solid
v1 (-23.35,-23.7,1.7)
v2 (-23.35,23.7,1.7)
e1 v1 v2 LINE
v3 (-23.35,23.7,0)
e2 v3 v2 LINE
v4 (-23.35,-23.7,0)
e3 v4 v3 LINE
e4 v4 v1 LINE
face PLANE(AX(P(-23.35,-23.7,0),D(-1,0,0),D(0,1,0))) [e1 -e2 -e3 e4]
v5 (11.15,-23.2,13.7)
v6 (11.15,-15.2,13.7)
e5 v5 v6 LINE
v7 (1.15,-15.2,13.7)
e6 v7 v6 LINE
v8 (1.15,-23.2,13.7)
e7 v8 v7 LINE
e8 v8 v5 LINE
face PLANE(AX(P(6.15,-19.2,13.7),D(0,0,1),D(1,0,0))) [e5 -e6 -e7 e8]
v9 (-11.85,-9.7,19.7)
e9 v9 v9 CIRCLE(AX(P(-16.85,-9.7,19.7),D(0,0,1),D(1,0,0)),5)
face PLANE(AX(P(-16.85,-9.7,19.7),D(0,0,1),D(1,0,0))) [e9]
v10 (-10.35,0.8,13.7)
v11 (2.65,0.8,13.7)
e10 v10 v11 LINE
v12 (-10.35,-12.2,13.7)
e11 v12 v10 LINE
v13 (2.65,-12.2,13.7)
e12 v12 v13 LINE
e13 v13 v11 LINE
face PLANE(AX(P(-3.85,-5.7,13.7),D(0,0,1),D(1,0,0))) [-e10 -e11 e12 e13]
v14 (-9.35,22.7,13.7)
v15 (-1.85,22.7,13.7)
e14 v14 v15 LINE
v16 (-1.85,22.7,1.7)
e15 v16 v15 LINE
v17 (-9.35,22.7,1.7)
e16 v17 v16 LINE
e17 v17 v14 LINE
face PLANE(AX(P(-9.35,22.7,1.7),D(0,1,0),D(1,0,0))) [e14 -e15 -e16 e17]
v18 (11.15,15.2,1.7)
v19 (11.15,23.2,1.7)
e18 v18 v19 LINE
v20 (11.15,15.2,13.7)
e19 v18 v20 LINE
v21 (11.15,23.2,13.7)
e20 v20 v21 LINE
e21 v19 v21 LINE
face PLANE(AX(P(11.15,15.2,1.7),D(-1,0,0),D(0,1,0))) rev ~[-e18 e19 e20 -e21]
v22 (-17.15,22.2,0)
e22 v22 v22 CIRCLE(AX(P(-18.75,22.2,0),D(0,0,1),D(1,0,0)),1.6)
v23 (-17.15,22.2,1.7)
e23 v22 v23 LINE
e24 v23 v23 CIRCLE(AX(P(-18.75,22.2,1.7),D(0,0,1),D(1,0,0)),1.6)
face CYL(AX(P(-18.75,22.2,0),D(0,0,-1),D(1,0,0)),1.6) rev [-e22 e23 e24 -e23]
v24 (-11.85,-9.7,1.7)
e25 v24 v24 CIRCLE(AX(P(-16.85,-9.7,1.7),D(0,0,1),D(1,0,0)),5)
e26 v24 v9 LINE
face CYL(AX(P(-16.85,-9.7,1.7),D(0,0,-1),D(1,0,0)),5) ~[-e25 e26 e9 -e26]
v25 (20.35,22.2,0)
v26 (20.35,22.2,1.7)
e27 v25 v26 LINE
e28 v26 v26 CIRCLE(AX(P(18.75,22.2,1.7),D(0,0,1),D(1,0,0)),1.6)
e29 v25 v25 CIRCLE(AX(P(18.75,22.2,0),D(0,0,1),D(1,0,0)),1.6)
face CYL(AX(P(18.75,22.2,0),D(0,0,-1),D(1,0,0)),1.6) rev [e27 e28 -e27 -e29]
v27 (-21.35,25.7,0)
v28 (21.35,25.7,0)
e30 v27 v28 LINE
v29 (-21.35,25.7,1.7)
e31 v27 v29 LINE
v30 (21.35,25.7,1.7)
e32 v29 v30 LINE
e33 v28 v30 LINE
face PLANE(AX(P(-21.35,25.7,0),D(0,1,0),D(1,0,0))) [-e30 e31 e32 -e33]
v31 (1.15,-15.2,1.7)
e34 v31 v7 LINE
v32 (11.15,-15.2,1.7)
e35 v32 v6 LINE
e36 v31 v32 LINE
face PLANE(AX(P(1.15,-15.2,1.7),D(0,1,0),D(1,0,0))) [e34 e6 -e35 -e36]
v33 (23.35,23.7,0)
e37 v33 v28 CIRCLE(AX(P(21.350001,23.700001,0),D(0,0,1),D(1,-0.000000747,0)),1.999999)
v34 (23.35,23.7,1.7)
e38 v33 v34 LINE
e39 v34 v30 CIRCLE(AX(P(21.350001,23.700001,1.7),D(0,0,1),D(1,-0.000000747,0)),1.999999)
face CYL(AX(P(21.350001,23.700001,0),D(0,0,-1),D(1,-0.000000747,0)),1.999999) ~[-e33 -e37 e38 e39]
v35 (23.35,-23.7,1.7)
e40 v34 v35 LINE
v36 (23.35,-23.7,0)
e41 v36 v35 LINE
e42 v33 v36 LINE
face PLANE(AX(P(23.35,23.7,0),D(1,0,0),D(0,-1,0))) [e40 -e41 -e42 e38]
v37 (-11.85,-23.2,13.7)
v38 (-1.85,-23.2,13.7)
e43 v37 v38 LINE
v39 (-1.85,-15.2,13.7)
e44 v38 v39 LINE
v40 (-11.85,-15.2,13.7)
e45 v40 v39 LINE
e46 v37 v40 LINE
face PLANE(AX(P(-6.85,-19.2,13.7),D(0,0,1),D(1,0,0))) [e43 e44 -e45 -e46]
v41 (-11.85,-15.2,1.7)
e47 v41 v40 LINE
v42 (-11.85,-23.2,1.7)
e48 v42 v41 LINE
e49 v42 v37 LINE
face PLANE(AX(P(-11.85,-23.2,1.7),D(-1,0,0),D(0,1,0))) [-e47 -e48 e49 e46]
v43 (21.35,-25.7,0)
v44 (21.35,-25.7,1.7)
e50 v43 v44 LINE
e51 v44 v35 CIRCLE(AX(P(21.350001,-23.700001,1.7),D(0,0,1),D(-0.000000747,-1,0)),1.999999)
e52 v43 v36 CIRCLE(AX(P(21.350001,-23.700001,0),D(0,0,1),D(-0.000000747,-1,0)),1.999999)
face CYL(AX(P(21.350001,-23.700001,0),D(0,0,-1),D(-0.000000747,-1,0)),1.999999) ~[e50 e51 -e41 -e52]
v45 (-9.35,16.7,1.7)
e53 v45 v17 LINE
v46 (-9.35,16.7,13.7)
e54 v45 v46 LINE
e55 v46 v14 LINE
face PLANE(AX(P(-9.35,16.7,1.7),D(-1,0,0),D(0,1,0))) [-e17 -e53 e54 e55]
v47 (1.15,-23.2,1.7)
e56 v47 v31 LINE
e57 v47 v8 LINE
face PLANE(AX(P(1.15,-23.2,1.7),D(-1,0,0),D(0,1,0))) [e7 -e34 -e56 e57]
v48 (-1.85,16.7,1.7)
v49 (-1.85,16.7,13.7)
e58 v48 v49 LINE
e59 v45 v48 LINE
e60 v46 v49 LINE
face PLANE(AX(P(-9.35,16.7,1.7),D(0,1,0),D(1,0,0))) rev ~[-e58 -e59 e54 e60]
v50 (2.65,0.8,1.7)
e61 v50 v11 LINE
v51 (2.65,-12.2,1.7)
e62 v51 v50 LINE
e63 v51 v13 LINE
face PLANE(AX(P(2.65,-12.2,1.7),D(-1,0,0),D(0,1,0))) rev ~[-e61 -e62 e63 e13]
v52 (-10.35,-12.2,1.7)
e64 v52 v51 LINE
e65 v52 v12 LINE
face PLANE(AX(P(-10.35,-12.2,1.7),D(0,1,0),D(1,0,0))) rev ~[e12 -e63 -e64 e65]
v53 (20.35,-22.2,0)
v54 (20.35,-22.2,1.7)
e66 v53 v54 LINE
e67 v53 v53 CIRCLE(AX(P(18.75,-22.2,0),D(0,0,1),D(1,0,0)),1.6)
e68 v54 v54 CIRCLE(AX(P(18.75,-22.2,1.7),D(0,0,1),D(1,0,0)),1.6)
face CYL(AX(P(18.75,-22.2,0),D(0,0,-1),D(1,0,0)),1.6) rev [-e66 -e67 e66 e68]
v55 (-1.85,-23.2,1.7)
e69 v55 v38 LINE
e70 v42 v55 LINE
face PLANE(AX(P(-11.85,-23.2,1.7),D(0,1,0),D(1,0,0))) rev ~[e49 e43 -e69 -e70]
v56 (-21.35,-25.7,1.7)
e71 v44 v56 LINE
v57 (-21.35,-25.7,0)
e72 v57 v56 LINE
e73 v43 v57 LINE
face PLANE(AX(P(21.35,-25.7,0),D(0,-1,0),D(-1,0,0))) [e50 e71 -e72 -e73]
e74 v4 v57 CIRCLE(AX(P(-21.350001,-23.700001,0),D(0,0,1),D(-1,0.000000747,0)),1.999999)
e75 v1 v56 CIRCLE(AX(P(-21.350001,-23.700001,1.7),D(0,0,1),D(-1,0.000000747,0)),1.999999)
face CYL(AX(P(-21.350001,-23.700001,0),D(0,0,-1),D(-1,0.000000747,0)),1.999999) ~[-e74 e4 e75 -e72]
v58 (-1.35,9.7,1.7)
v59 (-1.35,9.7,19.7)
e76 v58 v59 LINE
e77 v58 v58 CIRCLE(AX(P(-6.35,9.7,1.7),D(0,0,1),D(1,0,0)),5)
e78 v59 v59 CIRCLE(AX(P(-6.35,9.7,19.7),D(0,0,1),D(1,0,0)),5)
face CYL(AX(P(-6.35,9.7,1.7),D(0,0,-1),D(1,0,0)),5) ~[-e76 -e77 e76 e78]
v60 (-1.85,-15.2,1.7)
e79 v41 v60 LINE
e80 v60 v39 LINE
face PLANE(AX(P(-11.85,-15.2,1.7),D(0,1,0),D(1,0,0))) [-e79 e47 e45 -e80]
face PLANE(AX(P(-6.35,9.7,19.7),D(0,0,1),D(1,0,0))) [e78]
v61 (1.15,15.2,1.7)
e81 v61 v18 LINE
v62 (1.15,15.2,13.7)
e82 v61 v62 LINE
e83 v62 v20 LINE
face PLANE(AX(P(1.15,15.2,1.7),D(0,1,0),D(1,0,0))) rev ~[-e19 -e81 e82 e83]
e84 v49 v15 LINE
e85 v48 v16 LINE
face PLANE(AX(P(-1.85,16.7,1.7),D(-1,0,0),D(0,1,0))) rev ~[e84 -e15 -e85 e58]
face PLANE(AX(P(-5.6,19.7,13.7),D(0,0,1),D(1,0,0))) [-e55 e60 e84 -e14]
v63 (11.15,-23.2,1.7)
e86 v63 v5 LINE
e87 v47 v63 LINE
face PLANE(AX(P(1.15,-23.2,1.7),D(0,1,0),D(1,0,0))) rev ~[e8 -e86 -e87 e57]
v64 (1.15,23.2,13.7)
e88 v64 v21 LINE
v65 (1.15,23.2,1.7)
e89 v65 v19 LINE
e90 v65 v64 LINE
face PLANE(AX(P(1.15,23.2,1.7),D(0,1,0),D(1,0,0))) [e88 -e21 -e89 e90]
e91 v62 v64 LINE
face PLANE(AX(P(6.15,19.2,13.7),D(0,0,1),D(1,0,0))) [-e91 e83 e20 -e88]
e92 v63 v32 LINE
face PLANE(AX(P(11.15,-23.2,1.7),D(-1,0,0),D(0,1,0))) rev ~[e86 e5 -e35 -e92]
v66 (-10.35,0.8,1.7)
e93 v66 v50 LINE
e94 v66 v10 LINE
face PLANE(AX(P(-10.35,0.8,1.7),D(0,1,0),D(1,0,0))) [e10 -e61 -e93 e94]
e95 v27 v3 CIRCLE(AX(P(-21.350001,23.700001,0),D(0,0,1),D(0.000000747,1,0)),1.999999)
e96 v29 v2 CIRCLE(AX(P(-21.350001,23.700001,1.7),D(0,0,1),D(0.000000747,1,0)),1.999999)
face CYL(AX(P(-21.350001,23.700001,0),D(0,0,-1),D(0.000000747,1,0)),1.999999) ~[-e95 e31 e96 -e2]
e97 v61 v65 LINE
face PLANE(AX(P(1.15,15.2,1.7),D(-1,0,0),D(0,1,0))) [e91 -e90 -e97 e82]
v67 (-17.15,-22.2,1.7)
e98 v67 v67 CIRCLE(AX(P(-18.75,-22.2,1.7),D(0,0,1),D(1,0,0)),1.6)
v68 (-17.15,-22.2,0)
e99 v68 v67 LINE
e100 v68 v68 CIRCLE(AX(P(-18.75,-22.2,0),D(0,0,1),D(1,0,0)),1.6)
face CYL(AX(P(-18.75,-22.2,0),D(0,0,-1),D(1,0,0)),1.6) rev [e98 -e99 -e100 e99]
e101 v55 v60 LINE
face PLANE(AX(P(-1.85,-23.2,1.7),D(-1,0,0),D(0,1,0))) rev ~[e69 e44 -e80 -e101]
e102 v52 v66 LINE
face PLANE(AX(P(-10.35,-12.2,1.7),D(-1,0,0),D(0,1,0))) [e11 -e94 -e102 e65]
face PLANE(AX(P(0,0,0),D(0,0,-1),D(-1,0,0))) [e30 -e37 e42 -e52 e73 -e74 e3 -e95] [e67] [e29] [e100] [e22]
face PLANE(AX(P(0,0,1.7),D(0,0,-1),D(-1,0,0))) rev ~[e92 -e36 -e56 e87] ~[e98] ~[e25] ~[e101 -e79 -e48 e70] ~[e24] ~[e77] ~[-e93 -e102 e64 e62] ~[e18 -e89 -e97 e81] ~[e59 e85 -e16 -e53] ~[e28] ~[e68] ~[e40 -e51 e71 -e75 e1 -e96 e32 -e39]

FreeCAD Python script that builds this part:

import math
import FreeCAD as App
import Part
import Sketcher
Q = App.Units.Quantity

doc = App.newDocument("Part")
body = doc.addObject("PartDesign::Body", "Body")

# Sketch on XY plane
sketch1 = body.newObject("Sketcher::SketchObject", "Sketch")
sketch1.AttachmentSupport = (doc.getObject("XY_Plane"), [""])
sketch1.MapMode = "FlatFace"
sketch1.addGeometry(Part.LineSegment(App.Vector(21.35, 25.7, 0), App.Vector(-21.35, 25.7, 0)), False)
sketch1.addGeometry(Part.ArcOfCircle(Part.Circle(App.Vector(-21.350001, 23.700001, 0), App.Vector(0, 0, 1), 1.999999), math.radians(89.999957), math.radians(180.000043)), False)
sketch1.addGeometry(Part.LineSegment(App.Vector(-23.35, 23.7, 0), App.Vector(-23.35, -23.7, 0)), False)
sketch1.addGeometry(Part.ArcOfCircle(Part.Circle(App.Vector(-21.350001, -23.700001, 0), App.Vector(0, 0, 1), 1.999999), math.radians(179.999957), math.radians(270.000043)), False)
sketch1.addGeometry(Part.LineSegment(App.Vector(-21.35, -25.7, 0), App.Vector(21.35, -25.7, 0)), False)
sketch1.addGeometry(Part.ArcOfCircle(Part.Circle(App.Vector(21.350001, -23.700001, 0), App.Vector(0, 0, 1), 1.999999), math.radians(-90.000043), math.radians(0.000043)), False)
sketch1.addGeometry(Part.LineSegment(App.Vector(23.35, -23.7, 0), App.Vector(23.35, 23.7, 0)), False)
sketch1.addGeometry(Part.ArcOfCircle(Part.Circle(App.Vector(21.350001, 23.700001, 0), App.Vector(0, 0, 1), 1.999999), math.radians(-0.000043), math.radians(90.000043)), False)
sketch1.addGeometry(Part.Circle(App.Vector(18.75, -22.2, 0), App.Vector(0, 0, 1), 1.6), False)
sketch1.addGeometry(Part.Circle(App.Vector(-18.75, -22.2, 0), App.Vector(0, 0, 1), 1.6), False)
sketch1.addGeometry(Part.Circle(App.Vector(18.75, 22.2, 0), App.Vector(0, 0, 1), 1.6), False)
sketch1.addGeometry(Part.Circle(App.Vector(-18.75, 22.2, 0), App.Vector(0, 0, 1), 1.6), False)
sketch1.addConstraint(Sketcher.Constraint("Tangent", 0, 2, 1, 1))
sketch1.addConstraint(Sketcher.Constraint("Tangent", 1, 2, 2, 1))
sketch1.addConstraint(Sketcher.Constraint("Tangent", 2, 2, 3, 1))
sketch1.addConstraint(Sketcher.Constraint("Tangent", 3, 2, 4, 1))
sketch1.addConstraint(Sketcher.Constraint("Tangent", 4, 2, 5, 1))
sketch1.addConstraint(Sketcher.Constraint("Tangent", 5, 2, 6, 1))
sketch1.addConstraint(Sketcher.Constraint("Tangent", 6, 2, 7, 1))
sketch1.addConstraint(Sketcher.Constraint("Tangent", 7, 2, 0, 1))
sketch1.addConstraint(Sketcher.Constraint("Horizontal", 0))
sketch1.addConstraint(Sketcher.Constraint("Vertical", 2))
sketch1.addConstraint(Sketcher.Constraint("Horizontal", 4))
sketch1.addConstraint(Sketcher.Constraint("Vertical", 6))
sketch1.addConstraint(Sketcher.Constraint("Equal", 1, 3))
sketch1.addConstraint(Sketcher.Constraint("Equal", 3, 5))
sketch1.addConstraint(Sketcher.Constraint("Equal", 5, 7))
sketch1.addConstraint(Sketcher.Constraint("Equal", 8, 9))
sketch1.addConstraint(Sketcher.Constraint("Equal", 9, 10))
sketch1.addConstraint(Sketcher.Constraint("Equal", 10, 11))
sketch1.addConstraint(Sketcher.Constraint("Symmetric", 1, 3, 5, 3, -1, 1))
sketch1.addConstraint(Sketcher.Constraint("Symmetric", 9, 3, 10, 3, -1, 1))
sketch1.addConstraint(Sketcher.Constraint("Symmetric", 8, 3, 11, 3, -1, 1))
sketch1.addConstraint(Sketcher.Constraint("Symmetric", 8, 3, 9, 3, -2))
sketch1.addConstraint(Sketcher.Constraint("Radius", 1, Q("1.999999 mm")))
sketch1.addConstraint(Sketcher.Constraint("Diameter", 8, Q("3.2 mm")))
sketch1.addConstraint(Sketcher.Constraint("DistanceX", 0, 2, 0, 1, Q("42.7 mm")))
sketch1.addConstraint(Sketcher.Constraint("DistanceY", 2, 2, 2, 1, Q("47.4 mm")))
sketch1.addConstraint(Sketcher.Constraint("DistanceY", 8, 3, -1, 1, Q("22.2 mm")))
sketch1.addConstraint(Sketcher.Constraint("DistanceX", 8, 3, 5, 3, Q("2.600001 mm")))
pad1 = body.newObject("PartDesign::Pad", "Pad")
pad1.Profile = sketch1
pad1.Length = 1.7

# Sketch on XY plane
sketch2 = body.newObject("Sketcher::SketchObject", "Sketch001")
sketch2.AttachmentSupport = (doc.getObject("XY_Plane"), [""])
sketch2.MapMode = "FlatFace"
sketch2.AttachmentOffset = App.Placement(App.Vector(0, 0, 1.7), App.Rotation())
sketch2.addGeometry(Part.LineSegment(App.Vector(-11.85, -15.2, 0), App.Vector(-11.85, -23.2, 0)), False)
sketch2.addGeometry(Part.LineSegment(App.Vector(-11.85, -23.2, 0), App.Vector(-1.85, -23.2, 0)), False)
sketch2.addGeometry(Part.LineSegment(App.Vector(-1.85, -23.2, 0), App.Vector(-1.85, -15.2, 0)), False)
sketch2.addGeometry(Part.LineSegment(App.Vector(-1.85, -15.2, 0), App.Vector(-11.85, -15.2, 0)), False)
sketch2.addGeometry(Part.LineSegment(App.Vector(1.15, -15.2, 0), App.Vector(1.15, -23.2, 0)), False)
sketch2.addGeometry(Part.LineSegment(App.Vector(1.15, -23.2, 0), App.Vector(11.15, -23.2, 0)), False)
sketch2.addGeometry(Part.LineSegment(App.Vector(11.15, -23.2, 0), App.Vector(11.15, -15.2, 0)), False)
sketch2.addGeometry(Part.LineSegment(App.Vector(11.15, -15.2, 0), App.Vector(1.15, -15.2, 0)), False)
sketch2.addGeometry(Part.LineSegment(App.Vector(1.15, 23.2, 0), App.Vector(1.15, 15.2, 0)), False)
sketch2.addGeometry(Part.LineSegment(App.Vector(1.15, 15.2, 0), App.Vector(11.15, 15.2, 0)), False)
sketch2.addGeometry(Part.LineSegment(App.Vector(11.15, 15.2, 0), App.Vector(11.15, 23.2, 0)), False)
sketch2.addGeometry(Part.LineSegment(App.Vector(11.15, 23.2, 0), App.Vector(1.15, 23.2, 0)), False)
sketch2.addGeometry(Part.LineSegment(App.Vector(-9.35, 22.7, 0), App.Vector(-9.35, 16.7, 0)), False)
sketch2.addGeometry(Part.LineSegment(App.Vector(-9.35, 16.7, 0), App.Vector(-1.85, 16.7, 0)), False)
sketch2.addGeometry(Part.LineSegment(App.Vector(-1.85, 16.7, 0), App.Vector(-1.85, 22.7, 0)), False)
sketch2.addGeometry(Part.LineSegment(App.Vector(-1.85, 22.7, 0), App.Vector(-9.35, 22.7, 0)), False)
sketch2.addGeometry(Part.LineSegment(App.Vector(-10.35, 0.8, 0), App.Vector(-10.35, -12.2, 0)), False)
sketch2.addGeometry(Part.LineSegment(App.Vector(-10.35, -12.2, 0), App.Vector(2.65, -12.2, 0)), False)
sketch2.addGeometry(Part.LineSegment(App.Vector(2.65, -12.2, 0), App.Vector(2.65, 0.8, 0)), False)
sketch2.addGeometry(Part.LineSegment(App.Vector(2.65, 0.8, 0), App.Vector(-10.35, 0.8, 0)), False)
sketch2.addConstraint(Sketcher.Constraint("Coincident", 0, 2, 1, 1))
sketch2.addConstraint(Sketcher.Constraint("Coincident", 1, 2, 2, 1))
sketch2.addConstraint(Sketcher.Constraint("Coincident", 2, 2, 3, 1))
sketch2.addConstraint(Sketcher.Constraint("Coincident", 3, 2, 0, 1))
sketch2.addConstraint(Sketcher.Constraint("Coincident", 4, 2, 5, 1))
sketch2.addConstraint(Sketcher.Constraint("Coincident", 5, 2, 6, 1))
sketch2.addConstraint(Sketcher.Constraint("Coincident", 6, 2, 7, 1))
sketch2.addConstraint(Sketcher.Constraint("Coincident", 7, 2, 4, 1))
sketch2.addConstraint(Sketcher.Constraint("Coincident", 8, 2, 9, 1))
sketch2.addConstraint(Sketcher.Constraint("Coincident", 9, 2, 10, 1))
sketch2.addConstraint(Sketcher.Constraint("Coincident", 10, 2, 11, 1))
sketch2.addConstraint(Sketcher.Constraint("Coincident", 11, 2, 8, 1))
sketch2.addConstraint(Sketcher.Constraint("Coincident", 12, 2, 13, 1))
sketch2.addConstraint(Sketcher.Constraint("Coincident", 13, 2, 14, 1))
sketch2.addConstraint(Sketcher.Constraint("Coincident", 14, 2, 15, 1))
sketch2.addConstraint(Sketcher.Constraint("Coincident", 15, 2, 12, 1))
sketch2.addConstraint(Sketcher.Constraint("Coincident", 16, 2, 17, 1))
sketch2.addConstraint(Sketcher.Constraint("Coincident", 17, 2, 18, 1))
sketch2.addConstraint(Sketcher.Constraint("Coincident", 18, 2, 19, 1))
sketch2.addConstraint(Sketcher.Constraint("Coincident", 19, 2, 16, 1))
sketch2.addConstraint(Sketcher.Constraint("Vertical", 0))
sketch2.addConstraint(Sketcher.Constraint("Horizontal", 1))
sketch2.addConstraint(Sketcher.Constraint("Vertical", 2))
sketch2.addConstraint(Sketcher.Constraint("Horizontal", 3))
sketch2.addConstraint(Sketcher.Constraint("Vertical", 4))
sketch2.addConstraint(Sketcher.Constraint("Horizontal", 5))
sketch2.addConstraint(Sketcher.Constraint("Vertical", 6))
sketch2.addConstraint(Sketcher.Constraint("Horizontal", 7))
sketch2.addConstraint(Sketcher.Constraint("Vertical", 8))
sketch2.addConstraint(Sketcher.Constraint("Horizontal", 9))
sketch2.addConstraint(Sketcher.Constraint("Vertical", 10))
sketch2.addConstraint(Sketcher.Constraint("Horizontal", 11))
sketch2.addConstraint(Sketcher.Constraint("Vertical", 12))
sketch2.addConstraint(Sketcher.Constraint("Horizontal", 13))
sketch2.addConstraint(Sketcher.Constraint("Vertical", 14))
sketch2.addConstraint(Sketcher.Constraint("Horizontal", 15))
sketch2.addConstraint(Sketcher.Constraint("Vertical", 16))
sketch2.addConstraint(Sketcher.Constraint("Horizontal", 17))
sketch2.addConstraint(Sketcher.Constraint("Vertical", 18))
sketch2.addConstraint(Sketcher.Constraint("Horizontal", 19))
sketch2.addConstraint(Sketcher.Constraint("Symmetric", 7, 2, 8, 2, -1))
sketch2.addConstraint(Sketcher.Constraint("Symmetric", 5, 2, 10, 2, -1))
sketch2.addConstraint(Sketcher.Constraint("Horizontal", 1, 2, 4, 2))
sketch2.addConstraint(Sketcher.Constraint("Horizontal", 3, 2, 6, 2))
sketch2.addConstraint(Sketcher.Constraint("Vertical", 2, 2, 13, 2))
sketch2.addConstraint(Sketcher.Constraint("Equal", 3, 5))
sketch2.addConstraint(Sketcher.Constraint("Equal", 19, 16))
sketch2.addConstraint(Sketcher.Constraint("DistanceX", 1, 1, 1, 2, Q("10 mm")))
sketch2.addConstraint(Sketcher.Constraint("DistanceX", 17, 1, 17, 2, Q("13 mm")))
sketch2.addConstraint(Sketcher.Constraint("DistanceY", 0, 2, 0, 1, Q("8 mm")))
sketch2.addConstraint(Sketcher.Constraint("DistanceY", 12, 2, 12, 1, Q("6 mm")))
sketch2.addConstraint(Sketcher.Constraint("DistanceX", 13, 1, 13, 2, Q("7.5 mm")))
sketch2.addConstraint(Sketcher.Constraint("DistanceX", 1, 2, 4, 2, Q("3 mm")))
sketch2.addConstraint(Sketcher.Constraint("DistanceY", 3, 2, 16, 2, Q("3 mm")))
sketch2.addConstraint(Sketcher.Constraint("DistanceX", 19, 2, 12, 2, Q("1 mm")))
sketch2.addConstraint(Sketcher.Constraint("DistanceY", 0, 2, -1, 1, Q("23.2 mm")))
sketch2.addConstraint(Sketcher.Constraint("DistanceY", -1, 1, 12, 2, Q("16.7 mm")))
sketch2.addConstraint(Sketcher.Constraint("DistanceX", 0, 2, -1, 1, Q("11.85 mm")))
pad2 = body.newObject("PartDesign::Pad", "Pad001")
pad2.Profile = sketch2
pad2.Length = 12

# Sketch on XY plane
sketch3 = body.newObject("Sketcher::SketchObject", "Sketch002")
sketch3.AttachmentSupport = (doc.getObject("XY_Plane"), [""])
sketch3.MapMode = "FlatFace"
sketch3.AttachmentOffset = App.Placement(App.Vector(0, 0, 1.7), App.Rotation())
sketch3.addGeometry(Part.Circle(App.Vector(-16.85, -9.7, 0), App.Vector(0, 0, 1), 5), False)
sketch3.addGeometry(Part.Circle(App.Vector(-6.35, 9.7, 0), App.Vector(0, 0, 1), 5), False)
sketch3.addConstraint(Sketcher.Constraint("Equal", 0, 1))
sketch3.addConstraint(Sketcher.Constraint("Diameter", 0, Q("10 mm")))
sketch3.addConstraint(Sketcher.Constraint("DistanceY", 0, 3, -1, 1, Q("9.7 mm")))
sketch3.addConstraint(Sketcher.Constraint("DistanceY", -1, 1, 1, 3, Q("9.7 mm")))
sketch3.addConstraint(Sketcher.Constraint("DistanceX", 0, 3, 1, 3, Q("10.5 mm")))
sketch3.addConstraint(Sketcher.Constraint("DistanceX", 0, 3, -1, 1, Q("16.85 mm")))
pad3 = body.newObject("PartDesign::Pad", "Pad002")
pad3.Profile = sketch3
pad3.Length = 18

doc.recompute()
